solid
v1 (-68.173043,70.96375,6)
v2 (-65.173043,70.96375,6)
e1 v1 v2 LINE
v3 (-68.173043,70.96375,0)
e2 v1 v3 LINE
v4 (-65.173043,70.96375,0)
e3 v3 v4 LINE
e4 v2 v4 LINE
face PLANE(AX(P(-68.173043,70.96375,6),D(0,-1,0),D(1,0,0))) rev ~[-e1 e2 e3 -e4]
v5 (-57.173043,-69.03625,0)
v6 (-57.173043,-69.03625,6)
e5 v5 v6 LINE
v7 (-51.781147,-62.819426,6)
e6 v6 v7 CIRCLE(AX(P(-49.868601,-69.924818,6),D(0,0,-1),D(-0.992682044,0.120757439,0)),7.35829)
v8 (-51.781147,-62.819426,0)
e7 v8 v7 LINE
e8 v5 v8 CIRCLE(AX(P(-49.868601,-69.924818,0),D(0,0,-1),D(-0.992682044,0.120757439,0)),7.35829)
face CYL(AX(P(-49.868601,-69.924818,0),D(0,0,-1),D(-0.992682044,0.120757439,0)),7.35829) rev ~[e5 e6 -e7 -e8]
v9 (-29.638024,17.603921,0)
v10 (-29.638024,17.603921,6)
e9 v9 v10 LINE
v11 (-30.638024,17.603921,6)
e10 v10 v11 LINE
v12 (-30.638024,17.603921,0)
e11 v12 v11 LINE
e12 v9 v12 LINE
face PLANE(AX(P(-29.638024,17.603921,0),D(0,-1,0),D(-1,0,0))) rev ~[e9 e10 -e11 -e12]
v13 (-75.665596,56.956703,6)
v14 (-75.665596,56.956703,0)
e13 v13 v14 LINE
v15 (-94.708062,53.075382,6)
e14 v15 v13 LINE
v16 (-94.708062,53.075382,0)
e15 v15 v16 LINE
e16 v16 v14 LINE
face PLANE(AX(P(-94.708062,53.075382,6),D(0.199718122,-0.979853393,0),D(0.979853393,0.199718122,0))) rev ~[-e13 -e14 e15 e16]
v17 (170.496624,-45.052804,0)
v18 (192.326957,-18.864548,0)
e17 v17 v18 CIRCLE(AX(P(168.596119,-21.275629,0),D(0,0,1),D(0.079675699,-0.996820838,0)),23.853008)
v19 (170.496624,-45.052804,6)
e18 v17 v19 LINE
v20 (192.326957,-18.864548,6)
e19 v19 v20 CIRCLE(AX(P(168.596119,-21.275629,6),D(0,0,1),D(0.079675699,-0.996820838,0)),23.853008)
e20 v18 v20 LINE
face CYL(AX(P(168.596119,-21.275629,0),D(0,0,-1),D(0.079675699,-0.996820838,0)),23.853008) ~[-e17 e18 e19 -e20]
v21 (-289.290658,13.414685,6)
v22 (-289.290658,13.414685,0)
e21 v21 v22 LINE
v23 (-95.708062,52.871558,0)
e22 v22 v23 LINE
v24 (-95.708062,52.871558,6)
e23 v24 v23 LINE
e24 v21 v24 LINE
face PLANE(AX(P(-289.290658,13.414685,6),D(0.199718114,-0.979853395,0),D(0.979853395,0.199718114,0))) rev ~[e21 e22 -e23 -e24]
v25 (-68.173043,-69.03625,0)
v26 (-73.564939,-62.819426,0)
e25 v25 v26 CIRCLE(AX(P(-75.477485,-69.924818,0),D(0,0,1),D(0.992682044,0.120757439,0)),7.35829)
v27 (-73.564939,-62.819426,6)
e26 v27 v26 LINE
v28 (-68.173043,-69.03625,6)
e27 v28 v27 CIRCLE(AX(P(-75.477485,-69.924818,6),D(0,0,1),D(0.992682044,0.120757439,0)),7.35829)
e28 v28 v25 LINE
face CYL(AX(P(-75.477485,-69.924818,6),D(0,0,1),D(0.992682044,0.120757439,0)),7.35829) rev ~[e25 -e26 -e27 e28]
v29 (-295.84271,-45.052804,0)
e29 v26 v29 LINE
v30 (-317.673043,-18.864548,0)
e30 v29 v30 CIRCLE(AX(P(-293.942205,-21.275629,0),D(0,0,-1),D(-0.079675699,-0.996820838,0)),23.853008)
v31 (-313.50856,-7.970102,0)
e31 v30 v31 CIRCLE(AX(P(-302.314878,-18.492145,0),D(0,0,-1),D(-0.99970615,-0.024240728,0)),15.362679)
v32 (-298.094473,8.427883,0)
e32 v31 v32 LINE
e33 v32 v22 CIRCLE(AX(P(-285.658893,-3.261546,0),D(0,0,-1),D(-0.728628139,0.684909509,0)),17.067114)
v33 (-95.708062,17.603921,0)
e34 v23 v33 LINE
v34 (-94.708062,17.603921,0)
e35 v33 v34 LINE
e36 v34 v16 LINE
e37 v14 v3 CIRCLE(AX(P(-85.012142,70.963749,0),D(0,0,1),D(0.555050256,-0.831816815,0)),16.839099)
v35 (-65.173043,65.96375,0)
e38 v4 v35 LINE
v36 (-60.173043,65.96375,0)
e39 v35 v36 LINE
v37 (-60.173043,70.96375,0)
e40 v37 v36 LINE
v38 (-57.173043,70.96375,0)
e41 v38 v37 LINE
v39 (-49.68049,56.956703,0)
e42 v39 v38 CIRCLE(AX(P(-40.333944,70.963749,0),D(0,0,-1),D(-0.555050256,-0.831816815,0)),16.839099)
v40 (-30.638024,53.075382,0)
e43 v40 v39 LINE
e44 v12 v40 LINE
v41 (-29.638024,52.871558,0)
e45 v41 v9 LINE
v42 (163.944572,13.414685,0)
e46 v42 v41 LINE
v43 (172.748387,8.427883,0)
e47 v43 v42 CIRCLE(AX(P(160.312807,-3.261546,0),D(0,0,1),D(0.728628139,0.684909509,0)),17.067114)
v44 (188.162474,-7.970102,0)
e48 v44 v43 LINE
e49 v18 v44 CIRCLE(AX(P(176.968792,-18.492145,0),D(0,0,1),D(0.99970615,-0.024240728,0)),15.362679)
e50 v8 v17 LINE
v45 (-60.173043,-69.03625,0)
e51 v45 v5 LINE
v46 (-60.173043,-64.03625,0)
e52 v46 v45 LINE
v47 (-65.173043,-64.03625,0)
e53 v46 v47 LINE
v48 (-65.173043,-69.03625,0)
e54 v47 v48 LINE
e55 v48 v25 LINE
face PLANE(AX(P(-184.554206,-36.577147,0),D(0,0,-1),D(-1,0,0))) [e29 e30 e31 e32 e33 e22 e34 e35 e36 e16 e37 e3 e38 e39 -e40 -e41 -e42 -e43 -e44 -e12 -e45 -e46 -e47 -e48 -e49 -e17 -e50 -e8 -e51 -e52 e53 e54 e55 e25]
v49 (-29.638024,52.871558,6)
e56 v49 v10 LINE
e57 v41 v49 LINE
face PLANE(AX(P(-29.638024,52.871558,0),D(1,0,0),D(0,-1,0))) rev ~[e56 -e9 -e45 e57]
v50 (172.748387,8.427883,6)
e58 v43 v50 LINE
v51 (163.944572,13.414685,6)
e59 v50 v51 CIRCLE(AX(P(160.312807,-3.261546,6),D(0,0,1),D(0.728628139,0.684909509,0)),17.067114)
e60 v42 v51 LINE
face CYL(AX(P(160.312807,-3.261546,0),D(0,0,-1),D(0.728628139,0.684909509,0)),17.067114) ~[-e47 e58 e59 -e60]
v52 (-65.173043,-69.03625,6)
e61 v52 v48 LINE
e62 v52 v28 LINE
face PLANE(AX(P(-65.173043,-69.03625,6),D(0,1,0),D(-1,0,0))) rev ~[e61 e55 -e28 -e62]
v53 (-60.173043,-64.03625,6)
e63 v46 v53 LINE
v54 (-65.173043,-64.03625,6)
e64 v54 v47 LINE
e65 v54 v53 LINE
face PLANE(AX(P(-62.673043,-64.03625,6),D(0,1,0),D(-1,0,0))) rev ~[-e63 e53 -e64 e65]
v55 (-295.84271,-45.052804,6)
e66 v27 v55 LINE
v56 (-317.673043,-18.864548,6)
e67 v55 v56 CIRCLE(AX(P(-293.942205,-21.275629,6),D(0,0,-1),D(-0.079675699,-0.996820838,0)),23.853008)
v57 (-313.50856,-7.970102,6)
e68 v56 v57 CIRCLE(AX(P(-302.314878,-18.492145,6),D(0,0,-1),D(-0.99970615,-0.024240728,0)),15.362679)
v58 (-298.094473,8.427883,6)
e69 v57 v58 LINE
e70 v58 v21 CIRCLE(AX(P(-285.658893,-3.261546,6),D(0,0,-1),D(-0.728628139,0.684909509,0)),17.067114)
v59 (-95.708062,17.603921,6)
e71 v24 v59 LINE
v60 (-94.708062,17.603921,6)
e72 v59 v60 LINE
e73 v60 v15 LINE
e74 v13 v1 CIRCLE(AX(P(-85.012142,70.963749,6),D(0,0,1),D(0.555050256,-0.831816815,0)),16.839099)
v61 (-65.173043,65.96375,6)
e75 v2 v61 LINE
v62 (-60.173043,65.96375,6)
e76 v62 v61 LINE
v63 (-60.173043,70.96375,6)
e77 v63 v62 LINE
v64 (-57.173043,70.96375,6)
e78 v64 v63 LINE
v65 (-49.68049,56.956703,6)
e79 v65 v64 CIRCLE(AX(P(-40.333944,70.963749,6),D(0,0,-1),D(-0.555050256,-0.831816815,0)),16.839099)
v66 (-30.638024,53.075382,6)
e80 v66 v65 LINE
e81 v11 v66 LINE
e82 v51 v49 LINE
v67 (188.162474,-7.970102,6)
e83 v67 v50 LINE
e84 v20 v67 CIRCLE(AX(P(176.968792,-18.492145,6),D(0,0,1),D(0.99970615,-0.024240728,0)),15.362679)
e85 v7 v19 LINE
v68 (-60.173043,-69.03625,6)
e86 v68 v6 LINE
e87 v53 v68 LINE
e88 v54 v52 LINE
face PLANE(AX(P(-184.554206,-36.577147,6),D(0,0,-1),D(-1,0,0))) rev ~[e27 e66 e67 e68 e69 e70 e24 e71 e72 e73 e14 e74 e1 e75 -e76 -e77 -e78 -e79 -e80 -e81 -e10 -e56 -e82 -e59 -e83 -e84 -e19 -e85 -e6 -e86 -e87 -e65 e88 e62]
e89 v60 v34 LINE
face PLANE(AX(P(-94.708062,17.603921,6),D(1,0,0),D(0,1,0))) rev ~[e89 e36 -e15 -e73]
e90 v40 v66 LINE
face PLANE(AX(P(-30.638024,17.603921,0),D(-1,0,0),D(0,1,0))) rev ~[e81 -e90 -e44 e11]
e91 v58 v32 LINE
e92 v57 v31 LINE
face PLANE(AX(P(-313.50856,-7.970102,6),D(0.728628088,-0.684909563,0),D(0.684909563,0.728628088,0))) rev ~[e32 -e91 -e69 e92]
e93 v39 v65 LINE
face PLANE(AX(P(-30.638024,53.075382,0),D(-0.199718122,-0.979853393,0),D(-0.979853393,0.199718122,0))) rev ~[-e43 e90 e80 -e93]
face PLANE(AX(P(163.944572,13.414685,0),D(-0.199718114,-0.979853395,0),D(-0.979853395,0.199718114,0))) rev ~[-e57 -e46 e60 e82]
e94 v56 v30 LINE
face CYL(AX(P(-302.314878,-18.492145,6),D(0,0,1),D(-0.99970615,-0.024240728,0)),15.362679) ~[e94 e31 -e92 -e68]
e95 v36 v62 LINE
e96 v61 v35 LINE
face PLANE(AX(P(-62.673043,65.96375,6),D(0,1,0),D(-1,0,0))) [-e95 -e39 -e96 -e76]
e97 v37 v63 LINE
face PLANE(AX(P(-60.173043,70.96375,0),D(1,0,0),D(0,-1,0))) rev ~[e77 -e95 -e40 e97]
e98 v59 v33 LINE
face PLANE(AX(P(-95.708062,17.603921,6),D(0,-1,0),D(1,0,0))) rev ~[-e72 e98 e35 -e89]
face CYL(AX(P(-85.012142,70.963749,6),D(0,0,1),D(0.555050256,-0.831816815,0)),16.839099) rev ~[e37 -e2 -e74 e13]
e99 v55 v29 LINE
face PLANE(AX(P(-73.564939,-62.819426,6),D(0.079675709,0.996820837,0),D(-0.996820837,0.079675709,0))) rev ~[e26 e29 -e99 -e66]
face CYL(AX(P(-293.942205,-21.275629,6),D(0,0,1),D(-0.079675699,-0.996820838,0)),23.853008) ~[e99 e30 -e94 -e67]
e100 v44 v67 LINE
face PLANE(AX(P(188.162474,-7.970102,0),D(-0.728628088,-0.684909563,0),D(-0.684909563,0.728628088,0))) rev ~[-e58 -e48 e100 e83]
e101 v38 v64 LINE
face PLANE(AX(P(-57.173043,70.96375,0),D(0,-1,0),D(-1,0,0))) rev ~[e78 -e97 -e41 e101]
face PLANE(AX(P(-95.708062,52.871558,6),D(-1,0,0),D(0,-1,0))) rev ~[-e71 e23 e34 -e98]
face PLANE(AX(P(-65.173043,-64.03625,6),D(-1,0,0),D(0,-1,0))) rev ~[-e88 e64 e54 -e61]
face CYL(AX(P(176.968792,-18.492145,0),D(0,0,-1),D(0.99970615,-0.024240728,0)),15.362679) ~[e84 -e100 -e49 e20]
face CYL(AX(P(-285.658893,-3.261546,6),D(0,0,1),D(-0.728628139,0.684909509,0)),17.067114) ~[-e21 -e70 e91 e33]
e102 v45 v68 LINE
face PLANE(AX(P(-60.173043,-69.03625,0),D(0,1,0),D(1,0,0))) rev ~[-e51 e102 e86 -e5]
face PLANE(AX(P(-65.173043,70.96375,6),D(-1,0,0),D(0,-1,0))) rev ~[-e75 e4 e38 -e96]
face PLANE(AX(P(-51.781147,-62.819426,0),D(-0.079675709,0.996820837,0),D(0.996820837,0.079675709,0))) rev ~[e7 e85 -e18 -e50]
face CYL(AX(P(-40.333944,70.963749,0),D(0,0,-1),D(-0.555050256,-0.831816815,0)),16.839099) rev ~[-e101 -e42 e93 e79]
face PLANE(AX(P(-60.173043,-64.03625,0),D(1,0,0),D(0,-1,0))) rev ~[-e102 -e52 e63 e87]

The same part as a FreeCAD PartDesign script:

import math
import FreeCAD as App
import Part
import Sketcher

V = App.Vector
Q = App.Units.Quantity

doc = App.newDocument("Part")
body = doc.addObject("PartDesign::Body", "Body")

# Sketch on XY plane
sketch1 = body.newObject("Sketcher::SketchObject", "Sketch")
sketch1.AttachmentSupport = (doc.getObject("XY_Plane"), [""])
sketch1.MapMode = "FlatFace"
sketch1.addGeometry([
    Part.LineSegment(V(-57.173043, 70.96375, 0), V(-60.173043, 70.96375, 0)),  # 0
    Part.LineSegment(V(-60.173043, 70.96375, 0), V(-60.173043, 65.96375, 0)),  # 1
    Part.LineSegment(V(-60.173043, 65.96375, 0), V(-62.673043, 65.96375, 0)),  # 2
    Part.LineSegment(V(-62.673043, 65.96375, 0), V(-62.673043, -64.03625, 0)),  # 3
    Part.LineSegment(V(-62.673043, -64.03625, 0), V(-60.173043, -64.03625, 0)),  # 4
    Part.LineSegment(V(-60.173043, -64.03625, 0), V(-60.173043, -69.03625, 0)),  # 5
    Part.LineSegment(V(-60.173043, -69.03625, 0), V(-57.173043, -69.03625, 0)),  # 6
    Part.ArcOfCircle(Part.Circle(V(-49.868601, -69.924818, 0), V(0, 0, 1), 7.35829), math.radians(105.065152), math.radians(173.064181)),  # 7
    Part.LineSegment(V(-51.781147, -62.819426, 0), V(170.496624, -45.052804, 0)),  # 8
    Part.ArcOfCircle(Part.Circle(V(168.596119, -21.275629, 0), V(0, 0, 1), 23.853008), math.radians(-85.430075), math.radians(5.80141)),  # 9
    Part.ArcOfCircle(Part.Circle(V(176.968792, -18.492145, 0), V(0, 0, 1), 15.362679), math.radians(-1.389027), math.radians(43.228483)),  # 10
    Part.LineSegment(V(188.162474, -7.970102, 0), V(172.748387, 8.427883, 0)),  # 11
    Part.ArcOfCircle(Part.Circle(V(160.312807, -3.261546, 0), V(0, 0, 1), 17.067114), math.radians(43.228491), math.radians(77.713912)),  # 12
    Part.LineSegment(V(163.944572, 13.414685, 0), V(-29.638024, 52.871558, 0)),  # 13
    Part.LineSegment(V(-29.638024, 52.871558, 0), V(-29.638024, 17.603921, 0)),  # 14
    Part.LineSegment(V(-29.638024, 17.603921, 0), V(-30.638024, 17.603921, 0)),  # 15
    Part.LineSegment(V(-30.638024, 17.603921, 0), V(-30.638024, 53.075382, 0)),  # 16
    Part.LineSegment(V(-30.638024, 53.075382, 0), V(-49.68049, 56.956703, 0)),  # 17
    Part.ArcOfCircle(Part.Circle(V(-40.333944, 70.963749, 0), V(0, 0, 1), 16.839099), math.radians(179.999997), math.radians(236.285824)),  # 18
], False)
sketch1.addConstraint([
    Sketcher.Constraint("Coincident", 0, 2, 1, 1),
    Sketcher.Constraint("Coincident", 1, 2, 2, 1),
    Sketcher.Constraint("Coincident", 2, 2, 3, 1),
    Sketcher.Constraint("Coincident", 3, 2, 4, 1),
    Sketcher.Constraint("Coincident", 4, 2, 5, 1),
    Sketcher.Constraint("Coincident", 5, 2, 6, 1),
    Sketcher.Constraint("Coincident", 6, 2, 7, 2),
    Sketcher.Constraint("Coincident", 7, 1, 8, 1),
    Sketcher.Constraint("Tangent", 8, 2, 9, 1),
    Sketcher.Constraint("Coincident", 9, 2, 10, 1),
    Sketcher.Constraint("Tangent", 10, 2, 11, 1),
    Sketcher.Constraint("Tangent", 11, 2, 12, 1),
    Sketcher.Constraint("Coincident", 12, 2, 13, 1),
    Sketcher.Constraint("Coincident", 13, 2, 14, 1),
    Sketcher.Constraint("Coincident", 14, 2, 15, 1),
    Sketcher.Constraint("Coincident", 15, 2, 16, 1),
    Sketcher.Constraint("Coincident", 16, 2, 17, 1),
    Sketcher.Constraint("Coincident", 17, 2, 18, 2),
    Sketcher.Constraint("Coincident", 18, 1, 0, 1),
    Sketcher.Constraint("Horizontal", 0),
    Sketcher.Constraint("Vertical", 1),
    Sketcher.Constraint("Horizontal", 2),
    Sketcher.Constraint("Vertical", 3),
    Sketcher.Constraint("Horizontal", 4),
    Sketcher.Constraint("Vertical", 5),
    Sketcher.Constraint("Horizontal", 6),
    Sketcher.Constraint("Vertical", 14),
    Sketcher.Constraint("Horizontal", 15),
    Sketcher.Constraint("Vertical", 16),
    Sketcher.Constraint("Parallel", 13, 17),
    Sketcher.Constraint("Horizontal", 18, 3, 0, 2),
    Sketcher.Constraint("Vertical", 1, 2, 4, 2),
    Sketcher.Constraint("Vertical", 6, 2, 18, 1),
    Sketcher.Constraint("Equal", 1, 5),
    Sketcher.Constraint("DistanceX", 0, 2, 0, 1, Q("3 mm")),
    Sketcher.Constraint("DistanceX", 15, 2, 15, 1, Q("1 mm")),
    Sketcher.Constraint("DistanceY", 1, 2, 1, 1, Q("5 mm")),
    Sketcher.Constraint("DistanceY", 3, 2, 3, 1, Q("130 mm")),
    Sketcher.Constraint("DistanceX", 2, 2, 2, 1, Q("2.5 mm")),
    Sketcher.Constraint("Radius", 18, Q("16.839099 mm")),
    Sketcher.Constraint("Radius", 7, Q("7.35829 mm")),
    Sketcher.Constraint("Radius", 10, Q("15.362679 mm")),
    Sketcher.Constraint("Radius", 9, Q("23.853008 mm")),
    Sketcher.Constraint("Radius", 12, Q("17.067114 mm")),
    Sketcher.Constraint("DistanceY", 16, 1, 16, 2, Q("35.471461 mm")),
    Sketcher.Constraint("DistanceX", 7, 3, -1, 1, Q("49.868601 mm")),
    Sketcher.Constraint("DistanceY", 10, 2, -1, 1, Q("7.970102 mm")),
    Sketcher.Constraint("DistanceY", 10, 3, 12, 3, Q("15.2306 mm")),
    Sketcher.Constraint("Distance", 8, Q("222.986682 mm")),
    Sketcher.Constraint("Distance", 11, Q("22.505288 mm")),
    Sketcher.Constraint("DistanceY", 14, 2, 14, 1, Q("35.267637 mm")),
    Sketcher.Constraint("DistanceY", 7, 3, -1, 1, Q("69.924818 mm")),
    Sketcher.Constraint("DistanceX", -1, 1, 9, 3, Q("168.596119 mm")),
    Sketcher.Constraint("DistanceY", 9, 3, -1, 1, Q("21.275629 mm")),
    Sketcher.Constraint("DistanceY", -1, 1, 18, 3, Q("70.963749 mm")),
    Sketcher.Constraint("DistanceY", -1, 1, 14, 2, Q("17.603921 mm")),
    Sketcher.Constraint("DistanceX", 17, 2, -1, 1, Q("49.68049 mm")),
    Sketcher.Constraint("DistanceX", 12, 3, 9, 3, Q("8.283312 mm")),
    Sketcher.Constraint("DistanceY", 12, 3, 12, 2, Q("16.676231 mm")),
])
pad1 = body.newObject("PartDesign::Pad", "Pad")
pad1.Profile = sketch1
pad1.Length = 6
body2 = doc.addObject("PartDesign::Body", "Body001")
doc.recompute()

body2.BaseFeature = body
doc.recompute()

body.Placement = App.Placement(V(-125.346086, 0, 6), App.Rotation(V(0, -1, 0), 180))
boolean = body2.newObject("PartDesign::Boolean", "Boolean")
boolean.Type = "Fuse"
boolean.addObjects([body])

doc.recompute()
